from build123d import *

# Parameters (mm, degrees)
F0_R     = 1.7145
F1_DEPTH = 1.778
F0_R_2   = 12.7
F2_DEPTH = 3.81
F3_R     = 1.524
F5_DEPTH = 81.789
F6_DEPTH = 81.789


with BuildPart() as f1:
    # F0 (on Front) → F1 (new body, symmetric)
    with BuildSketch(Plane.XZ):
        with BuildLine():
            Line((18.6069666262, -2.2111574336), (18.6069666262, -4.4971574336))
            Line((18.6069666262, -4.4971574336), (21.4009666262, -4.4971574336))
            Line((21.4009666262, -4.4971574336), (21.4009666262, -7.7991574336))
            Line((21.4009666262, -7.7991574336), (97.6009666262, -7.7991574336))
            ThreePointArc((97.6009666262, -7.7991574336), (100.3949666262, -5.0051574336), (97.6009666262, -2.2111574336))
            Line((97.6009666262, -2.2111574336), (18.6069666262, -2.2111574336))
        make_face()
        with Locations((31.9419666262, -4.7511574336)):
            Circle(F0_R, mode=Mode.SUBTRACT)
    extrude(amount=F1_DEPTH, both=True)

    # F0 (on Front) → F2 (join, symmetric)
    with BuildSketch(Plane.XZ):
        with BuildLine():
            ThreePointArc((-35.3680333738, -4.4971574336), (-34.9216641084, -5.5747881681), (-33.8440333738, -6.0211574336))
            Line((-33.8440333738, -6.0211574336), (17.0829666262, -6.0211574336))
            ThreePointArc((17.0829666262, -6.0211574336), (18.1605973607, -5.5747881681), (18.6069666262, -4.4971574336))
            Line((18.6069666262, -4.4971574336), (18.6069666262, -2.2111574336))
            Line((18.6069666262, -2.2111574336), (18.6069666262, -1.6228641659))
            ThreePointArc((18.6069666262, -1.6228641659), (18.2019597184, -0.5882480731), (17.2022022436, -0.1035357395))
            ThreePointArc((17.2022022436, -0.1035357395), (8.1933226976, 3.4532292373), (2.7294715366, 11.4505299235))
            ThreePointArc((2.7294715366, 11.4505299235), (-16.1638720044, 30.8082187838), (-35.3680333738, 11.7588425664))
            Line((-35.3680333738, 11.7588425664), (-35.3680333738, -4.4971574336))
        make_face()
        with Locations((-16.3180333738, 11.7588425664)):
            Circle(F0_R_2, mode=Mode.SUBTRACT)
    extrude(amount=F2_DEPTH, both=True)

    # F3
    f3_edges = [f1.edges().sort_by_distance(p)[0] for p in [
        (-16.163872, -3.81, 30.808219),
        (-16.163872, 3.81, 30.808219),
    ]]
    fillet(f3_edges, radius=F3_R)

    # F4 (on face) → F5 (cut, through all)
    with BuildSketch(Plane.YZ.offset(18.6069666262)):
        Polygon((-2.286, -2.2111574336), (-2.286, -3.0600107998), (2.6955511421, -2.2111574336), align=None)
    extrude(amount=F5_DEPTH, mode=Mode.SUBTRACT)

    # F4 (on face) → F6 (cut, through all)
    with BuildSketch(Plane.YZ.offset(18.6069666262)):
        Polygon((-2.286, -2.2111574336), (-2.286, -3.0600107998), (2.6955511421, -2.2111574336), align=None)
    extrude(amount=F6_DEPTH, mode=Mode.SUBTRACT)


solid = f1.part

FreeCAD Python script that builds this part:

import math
import FreeCAD as App
import Part
import Sketcher

V = App.Vector
Q = App.Units.Quantity


def edges_at(feature, points):
    """Names of the edges that pass closest to the given points."""
    edges = feature.Shape.Edges
    near = lambda p: min(range(len(edges)), key=lambda i: edges[i].distToShape(Part.Vertex(*p))[0])
    return sorted({f"Edge{near(p) + 1}" for p in points})


def add_polygon(sketch, points):
    """Adds a closed chain of lines whose ends are joined by coincident constraints."""
    first, n = sketch.GeometryCount, len(points)
    for a, b in zip(points, points[1:] + points[:1]):
        sketch.addGeometry(Part.LineSegment(App.Vector(*a, 0), App.Vector(*b, 0)), False)
    for i in range(n):
        sketch.addConstraint(Sketcher.Constraint("Coincident", first + i, 2, first + (i + 1) % n, 1))

doc = App.newDocument("Part")
body = doc.addObject("PartDesign::Body", "Body")

sketch1 = body.newObject("Sketcher::SketchObject", "Sketch")
sketch1.AttachmentSupport = (doc.getObject("XZ_Plane"), [""])
sketch1.MapMode = "FlatFace"
sketch1.addGeometry([
    Part.LineSegment(V(18.6, -2.2, 0), V(18.6, -4.5, 0)),
    Part.LineSegment(V(18.6, -4.5, 0), V(21.4, -4.5, 0)),
    Part.LineSegment(V(21.4, -4.5, 0), V(21.4, -7.8, 0)),
    Part.LineSegment(V(21.4, -7.8, 0), V(97.6, -7.8, 0)),
    Part.ArcOfCircle(Part.Circle(V(97.6, -5, 0), V(0, 0, 1), 2.8), math.radians(-90), math.radians(90)),
    Part.LineSegment(V(97.6, -2.2, 0), V(18.6, -2.2, 0)),
    Part.Circle(V(31.9, -4.8, 0), V(0, 0, 1), 1.7),
], False)
sketch1.addConstraint([
    Sketcher.Constraint("Coincident", 0, 2, 1, 1),
    Sketcher.Constraint("Coincident", 1, 2, 2, 1),
    Sketcher.Constraint("Coincident", 2, 2, 3, 1),
    Sketcher.Constraint("Tangent", 3, 2, 4, 1),
    Sketcher.Constraint("Tangent", 4, 2, 5, 1),
    Sketcher.Constraint("Coincident", 5, 2, 0, 1),
    Sketcher.Constraint("Vertical", 0),
    Sketcher.Constraint("Horizontal", 1),
    Sketcher.Constraint("Vertical", 2),
    Sketcher.Constraint("Horizontal", 3),
    Sketcher.Constraint("Horizontal", 5),
    Sketcher.Constraint("DistanceX", 3, 1, 3, 2, Q("3 in")),
    Sketcher.Constraint("Radius", 4, Q("0.11 in")),
    Sketcher.Constraint("Diameter", 6, Q("0.135 in")),
    Sketcher.Constraint("DistanceX", 1, 1, 1, 2, Q("0.11 in")),
    Sketcher.Constraint("DistanceY", 0, 2, 0, 1, Q("0.09 in")),
    Sketcher.Constraint("DistanceY", 6, 3, 4, 2, Q("0.1 in")),
    Sketcher.Constraint("DistanceX", 6, 3, 4, 3, Q("2.585 in")),
    Sketcher.Constraint("DistanceX", -1, 1, 4, 3, Q("97.600967 mm")),
    Sketcher.Constraint("DistanceY", 4, 3, -1, 1, Q("5.005157 mm")),
])
pad1 = body.newObject("PartDesign::Pad", "Pad")
pad1.Profile = sketch1
pad1.Length = Q("0.14 in")
pad1.Midplane = True

sketch2 = body.newObject("Sketcher::SketchObject", "Sketch001")
sketch2.AttachmentSupport = (doc.getObject("XZ_Plane"), [""])
sketch2.MapMode = "FlatFace"
sketch2.addGeometry([
    Part.ArcOfCircle(Part.Circle(V(-33.8, -4.5, 0), V(0, 0, 1), 1.5), math.radians(180), math.radians(270)),
    Part.LineSegment(V(-33.8, -6, 0), V(17.1, -6, 0)),
    Part.ArcOfCircle(Part.Circle(V(17.1, -4.5, 0), V(0, 0, 1), 1.5), math.radians(-90), math.radians(0)),
    Part.LineSegment(V(18.6, -4.5, 0), V(18.6, -1.6, 0)),
    Part.ArcOfCircle(Part.Circle(V(17.1, -1.6, 0), V(0, 0, 1), 1.5), math.radians(0), math.radians(86)),
    Part.ArcOfCircle(Part.Circle(V(18.5, 16.4, 0), V(0, 0, 1), 16.5), math.radians(-163), math.radians(-94)),
    Part.ArcOfCircle(Part.Circle(V(-16.3, 11.8, 0), V(0, 0, 1), 19.1), math.radians(-1), math.radians(180)),
    Part.LineSegment(V(-35.4, 11.8, 0), V(-35.4, -4.5, 0)),
    Part.Circle(V(-16.3, 11.8, 0), V(0, 0, 1), 12.7),
], False)
sketch2.addConstraint([
    Sketcher.Constraint("Tangent", 0, 2, 1, 1),
    Sketcher.Constraint("Tangent", 1, 2, 2, 1),
    Sketcher.Constraint("Tangent", 2, 2, 3, 1),
    Sketcher.Constraint("Tangent", 3, 2, 4, 1),
    Sketcher.Constraint("Tangent", 4, 2, 5, 2),
    Sketcher.Constraint("Coincident", 5, 1, 6, 1),
    Sketcher.Constraint("Tangent", 6, 2, 7, 1),
    Sketcher.Constraint("Tangent", 7, 2, 0, 1),
    Sketcher.Constraint("Horizontal", 1),
    Sketcher.Constraint("Vertical", 3),
    Sketcher.Constraint("Vertical", 7),
    Sketcher.Constraint("Coincident", 8, 3, 6, 3),
    Sketcher.Constraint("Equal", 0, 2),
    Sketcher.Constraint("Equal", 2, 4),
    Sketcher.Constraint("Diameter", 8, Q("1 in")),
    Sketcher.Constraint("Radius", 0, Q("0.06 in")),
    Sketcher.Constraint("Radius", 5, Q("0.65 in")),
    Sketcher.Constraint("Radius", 6, Q("0.75 in")),
    Sketcher.Constraint("DistanceY", 7, 2, 7, 1, Q("0.64 in")),
    Sketcher.Constraint("DistanceX", 1, 1, 1, 2, Q("2.005 in")),
    Sketcher.Constraint("DistanceY", 3, 1, 3, 2, Q("2.874293 mm")),
    Sketcher.Constraint("DistanceX", -1, 1, 5, 3, Q("18.493921 mm")),
    Sketcher.Constraint("DistanceX", -1, 1, 5, 1, Q("2.729472 mm")),
    Sketcher.Constraint("DistanceY", -1, 1, 5, 1, Q("11.45053 mm")),
])
pad2 = body.newObject("PartDesign::Pad", "Pad001")
pad2.Profile = sketch2
pad2.Length = Q("0.3 in")
pad2.Midplane = True
doc.recompute()

fillet = body.newObject("PartDesign::Fillet", "Fillet")
fillet.Base = (pad2, edges_at(pad2, [(-16.164, -3.81, 30.808), (-16.164, 3.81, 30.808)]))
fillet.Radius = Q("0.06 in")

sketch3 = body.newObject("Sketcher::SketchObject", "Sketch002")
sketch3.AttachmentSupport = (doc.getObject("YZ_Plane"), [""])
sketch3.MapMode = "FlatFace"
sketch3.AttachmentOffset = App.Placement(V(0, 0, 18.606967), App.Rotation())
add_polygon(sketch3, [(-2.3, -2.2), (-2.3, -3.1), (2.7, -2.2)])
sketch3.addConstraint([
    Sketcher.Constraint("Vertical", 0),
    Sketcher.Constraint("Horizontal", 2),
    Sketcher.Constraint("DistanceX", 0, 2, -1, 1, Q("0.09 in")),
    Sketcher.Constraint("DistanceX", 2, 2, 2, 1, Q("4.981551 mm")),
    Sketcher.Constraint("DistanceY", 0, 2, 0, 1, Q("0.848853 mm")),
    Sketcher.Constraint("DistanceY", 0, 2, -1, 1, Q("3.060011 mm")),
])
pocket1 = body.newObject("PartDesign::Pocket", "Pocket")
pocket1.Profile = sketch3
pocket1.Type = "ThroughAll"
pocket1.Reversed = True

sketch4 = body.newObject("Sketcher::SketchObject", "Sketch003")
sketch4.AttachmentSupport = (doc.getObject("YZ_Plane"), [""])
sketch4.MapMode = "FlatFace"
sketch4.AttachmentOffset = App.Placement(V(0, 0, 18.606967), App.Rotation())
add_polygon(sketch4, [(-2.3, -2.2), (-2.3, -3.1), (2.7, -2.2)])
sketch4.addConstraint([
    Sketcher.Constraint("Vertical", 0),
    Sketcher.Constraint("Horizontal", 2),
    Sketcher.Constraint("DistanceX", 0, 2, -1, 1, Q("0.09 in")),
    Sketcher.Constraint("DistanceX", 2, 2, 2, 1, Q("4.981551 mm")),
    Sketcher.Constraint("DistanceY", 0, 2, 0, 1, Q("0.848853 mm")),
    Sketcher.Constraint("DistanceY", 0, 2, -1, 1, Q("3.060011 mm")),
])
pocket2 = body.newObject("PartDesign::Pocket", "Pocket001")
pocket2.Profile = sketch4
pocket2.Type = "ThroughAll"
pocket2.Reversed = True

doc.recompute()
